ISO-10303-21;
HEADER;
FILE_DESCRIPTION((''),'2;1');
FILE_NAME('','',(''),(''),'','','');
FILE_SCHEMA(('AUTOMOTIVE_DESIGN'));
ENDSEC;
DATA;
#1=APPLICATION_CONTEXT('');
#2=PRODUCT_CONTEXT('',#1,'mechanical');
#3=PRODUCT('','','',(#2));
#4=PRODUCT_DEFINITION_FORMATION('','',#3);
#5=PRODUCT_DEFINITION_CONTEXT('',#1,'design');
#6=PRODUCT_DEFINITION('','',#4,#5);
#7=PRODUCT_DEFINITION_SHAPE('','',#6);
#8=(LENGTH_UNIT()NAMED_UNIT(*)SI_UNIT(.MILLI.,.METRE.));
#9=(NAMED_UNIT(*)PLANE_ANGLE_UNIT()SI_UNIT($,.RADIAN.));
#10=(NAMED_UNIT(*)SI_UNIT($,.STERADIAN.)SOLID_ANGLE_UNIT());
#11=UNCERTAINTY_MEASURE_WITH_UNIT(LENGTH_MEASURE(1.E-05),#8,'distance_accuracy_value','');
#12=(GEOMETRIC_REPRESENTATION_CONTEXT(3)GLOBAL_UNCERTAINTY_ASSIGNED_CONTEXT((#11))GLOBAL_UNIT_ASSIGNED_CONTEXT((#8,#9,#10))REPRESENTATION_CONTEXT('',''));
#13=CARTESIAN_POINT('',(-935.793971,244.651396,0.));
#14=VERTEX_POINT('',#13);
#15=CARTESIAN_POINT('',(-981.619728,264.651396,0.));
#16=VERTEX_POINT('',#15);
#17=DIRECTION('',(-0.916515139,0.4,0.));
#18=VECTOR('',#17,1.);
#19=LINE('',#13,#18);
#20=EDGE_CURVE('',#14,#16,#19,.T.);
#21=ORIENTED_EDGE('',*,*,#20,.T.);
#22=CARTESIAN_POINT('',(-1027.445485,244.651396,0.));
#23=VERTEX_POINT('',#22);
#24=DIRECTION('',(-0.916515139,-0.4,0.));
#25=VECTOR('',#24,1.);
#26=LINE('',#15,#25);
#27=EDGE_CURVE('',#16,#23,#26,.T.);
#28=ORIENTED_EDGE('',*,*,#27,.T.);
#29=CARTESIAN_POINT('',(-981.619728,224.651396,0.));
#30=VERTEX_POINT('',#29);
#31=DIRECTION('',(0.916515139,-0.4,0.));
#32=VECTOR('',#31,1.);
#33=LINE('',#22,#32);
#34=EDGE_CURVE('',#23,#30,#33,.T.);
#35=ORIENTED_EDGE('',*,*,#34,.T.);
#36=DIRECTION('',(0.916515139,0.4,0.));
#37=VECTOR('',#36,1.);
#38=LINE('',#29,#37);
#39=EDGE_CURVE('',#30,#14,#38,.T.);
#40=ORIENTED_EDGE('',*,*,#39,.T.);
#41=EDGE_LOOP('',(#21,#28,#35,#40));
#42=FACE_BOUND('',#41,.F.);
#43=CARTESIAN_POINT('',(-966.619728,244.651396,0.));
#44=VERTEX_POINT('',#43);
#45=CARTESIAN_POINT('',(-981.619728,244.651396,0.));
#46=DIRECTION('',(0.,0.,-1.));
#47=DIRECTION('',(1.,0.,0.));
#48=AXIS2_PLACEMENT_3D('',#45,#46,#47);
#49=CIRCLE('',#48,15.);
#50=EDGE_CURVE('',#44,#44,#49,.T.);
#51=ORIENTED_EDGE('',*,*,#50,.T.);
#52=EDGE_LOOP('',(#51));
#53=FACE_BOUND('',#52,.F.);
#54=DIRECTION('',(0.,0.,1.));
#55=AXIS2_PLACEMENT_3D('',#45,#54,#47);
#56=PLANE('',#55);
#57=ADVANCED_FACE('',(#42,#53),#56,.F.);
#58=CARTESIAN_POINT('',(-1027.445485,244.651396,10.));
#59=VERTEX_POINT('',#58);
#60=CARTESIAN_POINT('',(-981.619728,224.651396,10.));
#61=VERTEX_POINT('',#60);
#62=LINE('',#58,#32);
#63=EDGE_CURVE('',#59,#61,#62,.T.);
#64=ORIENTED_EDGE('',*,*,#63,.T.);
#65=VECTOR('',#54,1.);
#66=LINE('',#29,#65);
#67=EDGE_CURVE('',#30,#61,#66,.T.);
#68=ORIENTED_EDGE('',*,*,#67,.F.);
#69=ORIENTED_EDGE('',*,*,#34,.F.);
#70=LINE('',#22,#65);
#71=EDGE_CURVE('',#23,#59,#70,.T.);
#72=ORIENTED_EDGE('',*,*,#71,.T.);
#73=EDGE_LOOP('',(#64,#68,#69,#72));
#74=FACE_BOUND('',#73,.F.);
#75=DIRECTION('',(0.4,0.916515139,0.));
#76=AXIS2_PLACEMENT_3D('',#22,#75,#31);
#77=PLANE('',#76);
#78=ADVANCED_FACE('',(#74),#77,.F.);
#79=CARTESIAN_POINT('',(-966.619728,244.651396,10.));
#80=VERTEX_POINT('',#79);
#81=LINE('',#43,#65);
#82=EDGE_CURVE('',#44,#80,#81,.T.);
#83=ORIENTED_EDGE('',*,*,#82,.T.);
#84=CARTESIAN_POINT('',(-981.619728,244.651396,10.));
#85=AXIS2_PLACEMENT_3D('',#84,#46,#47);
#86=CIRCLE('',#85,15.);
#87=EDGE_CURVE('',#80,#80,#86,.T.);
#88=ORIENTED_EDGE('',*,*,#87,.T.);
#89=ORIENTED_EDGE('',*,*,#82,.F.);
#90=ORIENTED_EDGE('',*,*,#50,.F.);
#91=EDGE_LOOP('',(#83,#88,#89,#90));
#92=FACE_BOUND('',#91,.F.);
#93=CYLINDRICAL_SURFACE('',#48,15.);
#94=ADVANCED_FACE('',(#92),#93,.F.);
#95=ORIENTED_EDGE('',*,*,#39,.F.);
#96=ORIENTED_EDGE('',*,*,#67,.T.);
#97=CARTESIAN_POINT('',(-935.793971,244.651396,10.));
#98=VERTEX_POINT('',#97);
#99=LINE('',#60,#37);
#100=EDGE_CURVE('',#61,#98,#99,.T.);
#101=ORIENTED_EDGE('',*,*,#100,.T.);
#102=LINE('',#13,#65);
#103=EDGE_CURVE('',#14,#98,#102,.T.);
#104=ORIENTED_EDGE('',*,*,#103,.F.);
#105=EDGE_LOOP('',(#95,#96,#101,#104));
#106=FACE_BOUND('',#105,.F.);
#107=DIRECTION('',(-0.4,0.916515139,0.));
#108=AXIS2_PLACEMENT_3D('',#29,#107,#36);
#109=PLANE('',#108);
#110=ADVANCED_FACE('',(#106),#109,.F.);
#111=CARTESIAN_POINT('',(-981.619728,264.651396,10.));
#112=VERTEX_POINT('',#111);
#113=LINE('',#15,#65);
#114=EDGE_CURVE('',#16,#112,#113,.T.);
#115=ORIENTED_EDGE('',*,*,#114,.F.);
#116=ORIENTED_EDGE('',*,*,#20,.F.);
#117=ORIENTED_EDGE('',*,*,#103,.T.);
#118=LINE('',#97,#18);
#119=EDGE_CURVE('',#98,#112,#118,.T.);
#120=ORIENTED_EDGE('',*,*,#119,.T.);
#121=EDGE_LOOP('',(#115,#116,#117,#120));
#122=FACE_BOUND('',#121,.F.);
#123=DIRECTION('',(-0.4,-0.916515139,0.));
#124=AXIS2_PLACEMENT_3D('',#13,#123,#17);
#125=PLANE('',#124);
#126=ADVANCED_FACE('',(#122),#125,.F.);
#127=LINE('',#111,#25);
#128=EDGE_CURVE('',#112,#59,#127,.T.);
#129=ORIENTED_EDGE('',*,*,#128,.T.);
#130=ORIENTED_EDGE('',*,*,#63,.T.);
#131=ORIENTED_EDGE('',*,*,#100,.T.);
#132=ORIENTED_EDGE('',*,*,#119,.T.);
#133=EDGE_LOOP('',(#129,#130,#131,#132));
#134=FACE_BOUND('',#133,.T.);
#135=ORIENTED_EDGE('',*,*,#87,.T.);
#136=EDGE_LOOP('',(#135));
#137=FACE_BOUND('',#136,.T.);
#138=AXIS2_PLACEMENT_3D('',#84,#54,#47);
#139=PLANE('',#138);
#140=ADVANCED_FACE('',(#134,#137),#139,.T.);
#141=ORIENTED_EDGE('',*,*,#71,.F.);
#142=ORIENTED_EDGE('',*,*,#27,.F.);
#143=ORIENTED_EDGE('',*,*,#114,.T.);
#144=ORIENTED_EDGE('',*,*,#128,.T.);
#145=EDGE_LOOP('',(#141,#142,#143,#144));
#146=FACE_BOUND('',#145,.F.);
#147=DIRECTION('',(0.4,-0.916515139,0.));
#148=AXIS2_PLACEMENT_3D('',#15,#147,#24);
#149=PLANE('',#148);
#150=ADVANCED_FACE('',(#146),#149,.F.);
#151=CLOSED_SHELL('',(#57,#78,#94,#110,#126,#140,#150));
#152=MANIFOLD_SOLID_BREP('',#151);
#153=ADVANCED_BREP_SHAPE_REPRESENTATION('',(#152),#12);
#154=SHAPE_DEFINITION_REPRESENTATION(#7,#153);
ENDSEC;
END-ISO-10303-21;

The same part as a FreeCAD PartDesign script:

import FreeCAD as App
import Part
import Sketcher
Q = App.Units.Quantity


def add_polygon(sketch, points):
    """Adds a closed chain of lines whose ends are joined by coincident constraints."""
    first, n = sketch.GeometryCount, len(points)
    for a, b in zip(points, points[1:] + points[:1]):
        sketch.addGeometry(Part.LineSegment(App.Vector(*a, 0), App.Vector(*b, 0)), False)
    for i in range(n):
        sketch.addConstraint(Sketcher.Constraint("Coincident", first + i, 2, first + (i + 1) % n, 1))

doc = App.newDocument("Part")
body = doc.addObject("PartDesign::Body", "Body")

# Sketch on XY plane
sketch1 = body.newObject("Sketcher::SketchObject", "Sketch")
sketch1.AttachmentSupport = (doc.getObject("XY_Plane"), [""])
sketch1.MapMode = "FlatFace"
add_polygon(sketch1, [(-1027, 245), (-982, 225), (-936, 245), (-982, 265)])  # lines 0-3
sketch1.addConstraint([
    Sketcher.Constraint("Parallel", 0, 2),
    Sketcher.Constraint("Parallel", 1, 3),
    Sketcher.Constraint("Horizontal", 1, 2, 3, 2),
    Sketcher.Constraint("Vertical", 0, 2, 2, 2),
    Sketcher.Constraint("Distance", 0, Q("50 mm")),
    Sketcher.Constraint("DistanceY", 0, 2, 1, 2, Q("20 mm")),
    Sketcher.Constraint("DistanceX", 0, 2, -1, 1, Q("981.619728 mm")),
    Sketcher.Constraint("DistanceY", -1, 1, 0, 2, Q("224.651396 mm")),
])
pad1 = body.newObject("PartDesign::Pad", "Pad")
pad1.Profile = sketch1
pad1.Length = 10

# Sketch on XY plane
sketch2 = body.newObject("Sketcher::SketchObject", "Sketch001")
sketch2.AttachmentSupport = (doc.getObject("XY_Plane"), [""])
sketch2.MapMode = "FlatFace"
sketch2.addGeometry(Part.Circle(App.Vector(-982, 245, 0), App.Vector(0, 0, 1), 15), False)
sketch2.addConstraint([
    Sketcher.Constraint("Diameter", 0, Q("30 mm")),
    Sketcher.Constraint("DistanceX", 0, 3, -1, 1, Q("981.619728 mm")),
    Sketcher.Constraint("DistanceY", -1, 1, 0, 3, Q("244.651396 mm")),
])
pocket1 = body.newObject("PartDesign::Pocket", "Pocket")
pocket1.Profile = sketch2
pocket1.Type = "ThroughAll"
pocket1.Reversed = True

doc.recompute()
